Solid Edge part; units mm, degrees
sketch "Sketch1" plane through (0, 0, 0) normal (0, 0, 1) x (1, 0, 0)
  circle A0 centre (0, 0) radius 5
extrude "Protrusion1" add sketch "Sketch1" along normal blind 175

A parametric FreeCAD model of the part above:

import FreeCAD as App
import Part
import Sketcher

doc = App.newDocument("Part")
body = doc.addObject("PartDesign::Body", "Body")

# Sketch on XY plane
sketch1 = body.newObject("Sketcher::SketchObject", "Sketch")
sketch1.AttachmentSupport = (doc.getObject("XY_Plane"), [""])
sketch1.MapMode = "FlatFace"
sketch1.addGeometry(Part.Circle(App.Vector(0, 0, 0), App.Vector(0, 0, 1), 5), False)
sketch1.addConstraint([
    Sketcher.Constraint("Coincident", 0, 3, -1, 1),
    Sketcher.Constraint("Diameter", 0, 10.0),
])
pad1 = body.newObject("PartDesign::Pad", "Pad")
pad1.Profile = sketch1
pad1.Length = 175

doc.recompute()
